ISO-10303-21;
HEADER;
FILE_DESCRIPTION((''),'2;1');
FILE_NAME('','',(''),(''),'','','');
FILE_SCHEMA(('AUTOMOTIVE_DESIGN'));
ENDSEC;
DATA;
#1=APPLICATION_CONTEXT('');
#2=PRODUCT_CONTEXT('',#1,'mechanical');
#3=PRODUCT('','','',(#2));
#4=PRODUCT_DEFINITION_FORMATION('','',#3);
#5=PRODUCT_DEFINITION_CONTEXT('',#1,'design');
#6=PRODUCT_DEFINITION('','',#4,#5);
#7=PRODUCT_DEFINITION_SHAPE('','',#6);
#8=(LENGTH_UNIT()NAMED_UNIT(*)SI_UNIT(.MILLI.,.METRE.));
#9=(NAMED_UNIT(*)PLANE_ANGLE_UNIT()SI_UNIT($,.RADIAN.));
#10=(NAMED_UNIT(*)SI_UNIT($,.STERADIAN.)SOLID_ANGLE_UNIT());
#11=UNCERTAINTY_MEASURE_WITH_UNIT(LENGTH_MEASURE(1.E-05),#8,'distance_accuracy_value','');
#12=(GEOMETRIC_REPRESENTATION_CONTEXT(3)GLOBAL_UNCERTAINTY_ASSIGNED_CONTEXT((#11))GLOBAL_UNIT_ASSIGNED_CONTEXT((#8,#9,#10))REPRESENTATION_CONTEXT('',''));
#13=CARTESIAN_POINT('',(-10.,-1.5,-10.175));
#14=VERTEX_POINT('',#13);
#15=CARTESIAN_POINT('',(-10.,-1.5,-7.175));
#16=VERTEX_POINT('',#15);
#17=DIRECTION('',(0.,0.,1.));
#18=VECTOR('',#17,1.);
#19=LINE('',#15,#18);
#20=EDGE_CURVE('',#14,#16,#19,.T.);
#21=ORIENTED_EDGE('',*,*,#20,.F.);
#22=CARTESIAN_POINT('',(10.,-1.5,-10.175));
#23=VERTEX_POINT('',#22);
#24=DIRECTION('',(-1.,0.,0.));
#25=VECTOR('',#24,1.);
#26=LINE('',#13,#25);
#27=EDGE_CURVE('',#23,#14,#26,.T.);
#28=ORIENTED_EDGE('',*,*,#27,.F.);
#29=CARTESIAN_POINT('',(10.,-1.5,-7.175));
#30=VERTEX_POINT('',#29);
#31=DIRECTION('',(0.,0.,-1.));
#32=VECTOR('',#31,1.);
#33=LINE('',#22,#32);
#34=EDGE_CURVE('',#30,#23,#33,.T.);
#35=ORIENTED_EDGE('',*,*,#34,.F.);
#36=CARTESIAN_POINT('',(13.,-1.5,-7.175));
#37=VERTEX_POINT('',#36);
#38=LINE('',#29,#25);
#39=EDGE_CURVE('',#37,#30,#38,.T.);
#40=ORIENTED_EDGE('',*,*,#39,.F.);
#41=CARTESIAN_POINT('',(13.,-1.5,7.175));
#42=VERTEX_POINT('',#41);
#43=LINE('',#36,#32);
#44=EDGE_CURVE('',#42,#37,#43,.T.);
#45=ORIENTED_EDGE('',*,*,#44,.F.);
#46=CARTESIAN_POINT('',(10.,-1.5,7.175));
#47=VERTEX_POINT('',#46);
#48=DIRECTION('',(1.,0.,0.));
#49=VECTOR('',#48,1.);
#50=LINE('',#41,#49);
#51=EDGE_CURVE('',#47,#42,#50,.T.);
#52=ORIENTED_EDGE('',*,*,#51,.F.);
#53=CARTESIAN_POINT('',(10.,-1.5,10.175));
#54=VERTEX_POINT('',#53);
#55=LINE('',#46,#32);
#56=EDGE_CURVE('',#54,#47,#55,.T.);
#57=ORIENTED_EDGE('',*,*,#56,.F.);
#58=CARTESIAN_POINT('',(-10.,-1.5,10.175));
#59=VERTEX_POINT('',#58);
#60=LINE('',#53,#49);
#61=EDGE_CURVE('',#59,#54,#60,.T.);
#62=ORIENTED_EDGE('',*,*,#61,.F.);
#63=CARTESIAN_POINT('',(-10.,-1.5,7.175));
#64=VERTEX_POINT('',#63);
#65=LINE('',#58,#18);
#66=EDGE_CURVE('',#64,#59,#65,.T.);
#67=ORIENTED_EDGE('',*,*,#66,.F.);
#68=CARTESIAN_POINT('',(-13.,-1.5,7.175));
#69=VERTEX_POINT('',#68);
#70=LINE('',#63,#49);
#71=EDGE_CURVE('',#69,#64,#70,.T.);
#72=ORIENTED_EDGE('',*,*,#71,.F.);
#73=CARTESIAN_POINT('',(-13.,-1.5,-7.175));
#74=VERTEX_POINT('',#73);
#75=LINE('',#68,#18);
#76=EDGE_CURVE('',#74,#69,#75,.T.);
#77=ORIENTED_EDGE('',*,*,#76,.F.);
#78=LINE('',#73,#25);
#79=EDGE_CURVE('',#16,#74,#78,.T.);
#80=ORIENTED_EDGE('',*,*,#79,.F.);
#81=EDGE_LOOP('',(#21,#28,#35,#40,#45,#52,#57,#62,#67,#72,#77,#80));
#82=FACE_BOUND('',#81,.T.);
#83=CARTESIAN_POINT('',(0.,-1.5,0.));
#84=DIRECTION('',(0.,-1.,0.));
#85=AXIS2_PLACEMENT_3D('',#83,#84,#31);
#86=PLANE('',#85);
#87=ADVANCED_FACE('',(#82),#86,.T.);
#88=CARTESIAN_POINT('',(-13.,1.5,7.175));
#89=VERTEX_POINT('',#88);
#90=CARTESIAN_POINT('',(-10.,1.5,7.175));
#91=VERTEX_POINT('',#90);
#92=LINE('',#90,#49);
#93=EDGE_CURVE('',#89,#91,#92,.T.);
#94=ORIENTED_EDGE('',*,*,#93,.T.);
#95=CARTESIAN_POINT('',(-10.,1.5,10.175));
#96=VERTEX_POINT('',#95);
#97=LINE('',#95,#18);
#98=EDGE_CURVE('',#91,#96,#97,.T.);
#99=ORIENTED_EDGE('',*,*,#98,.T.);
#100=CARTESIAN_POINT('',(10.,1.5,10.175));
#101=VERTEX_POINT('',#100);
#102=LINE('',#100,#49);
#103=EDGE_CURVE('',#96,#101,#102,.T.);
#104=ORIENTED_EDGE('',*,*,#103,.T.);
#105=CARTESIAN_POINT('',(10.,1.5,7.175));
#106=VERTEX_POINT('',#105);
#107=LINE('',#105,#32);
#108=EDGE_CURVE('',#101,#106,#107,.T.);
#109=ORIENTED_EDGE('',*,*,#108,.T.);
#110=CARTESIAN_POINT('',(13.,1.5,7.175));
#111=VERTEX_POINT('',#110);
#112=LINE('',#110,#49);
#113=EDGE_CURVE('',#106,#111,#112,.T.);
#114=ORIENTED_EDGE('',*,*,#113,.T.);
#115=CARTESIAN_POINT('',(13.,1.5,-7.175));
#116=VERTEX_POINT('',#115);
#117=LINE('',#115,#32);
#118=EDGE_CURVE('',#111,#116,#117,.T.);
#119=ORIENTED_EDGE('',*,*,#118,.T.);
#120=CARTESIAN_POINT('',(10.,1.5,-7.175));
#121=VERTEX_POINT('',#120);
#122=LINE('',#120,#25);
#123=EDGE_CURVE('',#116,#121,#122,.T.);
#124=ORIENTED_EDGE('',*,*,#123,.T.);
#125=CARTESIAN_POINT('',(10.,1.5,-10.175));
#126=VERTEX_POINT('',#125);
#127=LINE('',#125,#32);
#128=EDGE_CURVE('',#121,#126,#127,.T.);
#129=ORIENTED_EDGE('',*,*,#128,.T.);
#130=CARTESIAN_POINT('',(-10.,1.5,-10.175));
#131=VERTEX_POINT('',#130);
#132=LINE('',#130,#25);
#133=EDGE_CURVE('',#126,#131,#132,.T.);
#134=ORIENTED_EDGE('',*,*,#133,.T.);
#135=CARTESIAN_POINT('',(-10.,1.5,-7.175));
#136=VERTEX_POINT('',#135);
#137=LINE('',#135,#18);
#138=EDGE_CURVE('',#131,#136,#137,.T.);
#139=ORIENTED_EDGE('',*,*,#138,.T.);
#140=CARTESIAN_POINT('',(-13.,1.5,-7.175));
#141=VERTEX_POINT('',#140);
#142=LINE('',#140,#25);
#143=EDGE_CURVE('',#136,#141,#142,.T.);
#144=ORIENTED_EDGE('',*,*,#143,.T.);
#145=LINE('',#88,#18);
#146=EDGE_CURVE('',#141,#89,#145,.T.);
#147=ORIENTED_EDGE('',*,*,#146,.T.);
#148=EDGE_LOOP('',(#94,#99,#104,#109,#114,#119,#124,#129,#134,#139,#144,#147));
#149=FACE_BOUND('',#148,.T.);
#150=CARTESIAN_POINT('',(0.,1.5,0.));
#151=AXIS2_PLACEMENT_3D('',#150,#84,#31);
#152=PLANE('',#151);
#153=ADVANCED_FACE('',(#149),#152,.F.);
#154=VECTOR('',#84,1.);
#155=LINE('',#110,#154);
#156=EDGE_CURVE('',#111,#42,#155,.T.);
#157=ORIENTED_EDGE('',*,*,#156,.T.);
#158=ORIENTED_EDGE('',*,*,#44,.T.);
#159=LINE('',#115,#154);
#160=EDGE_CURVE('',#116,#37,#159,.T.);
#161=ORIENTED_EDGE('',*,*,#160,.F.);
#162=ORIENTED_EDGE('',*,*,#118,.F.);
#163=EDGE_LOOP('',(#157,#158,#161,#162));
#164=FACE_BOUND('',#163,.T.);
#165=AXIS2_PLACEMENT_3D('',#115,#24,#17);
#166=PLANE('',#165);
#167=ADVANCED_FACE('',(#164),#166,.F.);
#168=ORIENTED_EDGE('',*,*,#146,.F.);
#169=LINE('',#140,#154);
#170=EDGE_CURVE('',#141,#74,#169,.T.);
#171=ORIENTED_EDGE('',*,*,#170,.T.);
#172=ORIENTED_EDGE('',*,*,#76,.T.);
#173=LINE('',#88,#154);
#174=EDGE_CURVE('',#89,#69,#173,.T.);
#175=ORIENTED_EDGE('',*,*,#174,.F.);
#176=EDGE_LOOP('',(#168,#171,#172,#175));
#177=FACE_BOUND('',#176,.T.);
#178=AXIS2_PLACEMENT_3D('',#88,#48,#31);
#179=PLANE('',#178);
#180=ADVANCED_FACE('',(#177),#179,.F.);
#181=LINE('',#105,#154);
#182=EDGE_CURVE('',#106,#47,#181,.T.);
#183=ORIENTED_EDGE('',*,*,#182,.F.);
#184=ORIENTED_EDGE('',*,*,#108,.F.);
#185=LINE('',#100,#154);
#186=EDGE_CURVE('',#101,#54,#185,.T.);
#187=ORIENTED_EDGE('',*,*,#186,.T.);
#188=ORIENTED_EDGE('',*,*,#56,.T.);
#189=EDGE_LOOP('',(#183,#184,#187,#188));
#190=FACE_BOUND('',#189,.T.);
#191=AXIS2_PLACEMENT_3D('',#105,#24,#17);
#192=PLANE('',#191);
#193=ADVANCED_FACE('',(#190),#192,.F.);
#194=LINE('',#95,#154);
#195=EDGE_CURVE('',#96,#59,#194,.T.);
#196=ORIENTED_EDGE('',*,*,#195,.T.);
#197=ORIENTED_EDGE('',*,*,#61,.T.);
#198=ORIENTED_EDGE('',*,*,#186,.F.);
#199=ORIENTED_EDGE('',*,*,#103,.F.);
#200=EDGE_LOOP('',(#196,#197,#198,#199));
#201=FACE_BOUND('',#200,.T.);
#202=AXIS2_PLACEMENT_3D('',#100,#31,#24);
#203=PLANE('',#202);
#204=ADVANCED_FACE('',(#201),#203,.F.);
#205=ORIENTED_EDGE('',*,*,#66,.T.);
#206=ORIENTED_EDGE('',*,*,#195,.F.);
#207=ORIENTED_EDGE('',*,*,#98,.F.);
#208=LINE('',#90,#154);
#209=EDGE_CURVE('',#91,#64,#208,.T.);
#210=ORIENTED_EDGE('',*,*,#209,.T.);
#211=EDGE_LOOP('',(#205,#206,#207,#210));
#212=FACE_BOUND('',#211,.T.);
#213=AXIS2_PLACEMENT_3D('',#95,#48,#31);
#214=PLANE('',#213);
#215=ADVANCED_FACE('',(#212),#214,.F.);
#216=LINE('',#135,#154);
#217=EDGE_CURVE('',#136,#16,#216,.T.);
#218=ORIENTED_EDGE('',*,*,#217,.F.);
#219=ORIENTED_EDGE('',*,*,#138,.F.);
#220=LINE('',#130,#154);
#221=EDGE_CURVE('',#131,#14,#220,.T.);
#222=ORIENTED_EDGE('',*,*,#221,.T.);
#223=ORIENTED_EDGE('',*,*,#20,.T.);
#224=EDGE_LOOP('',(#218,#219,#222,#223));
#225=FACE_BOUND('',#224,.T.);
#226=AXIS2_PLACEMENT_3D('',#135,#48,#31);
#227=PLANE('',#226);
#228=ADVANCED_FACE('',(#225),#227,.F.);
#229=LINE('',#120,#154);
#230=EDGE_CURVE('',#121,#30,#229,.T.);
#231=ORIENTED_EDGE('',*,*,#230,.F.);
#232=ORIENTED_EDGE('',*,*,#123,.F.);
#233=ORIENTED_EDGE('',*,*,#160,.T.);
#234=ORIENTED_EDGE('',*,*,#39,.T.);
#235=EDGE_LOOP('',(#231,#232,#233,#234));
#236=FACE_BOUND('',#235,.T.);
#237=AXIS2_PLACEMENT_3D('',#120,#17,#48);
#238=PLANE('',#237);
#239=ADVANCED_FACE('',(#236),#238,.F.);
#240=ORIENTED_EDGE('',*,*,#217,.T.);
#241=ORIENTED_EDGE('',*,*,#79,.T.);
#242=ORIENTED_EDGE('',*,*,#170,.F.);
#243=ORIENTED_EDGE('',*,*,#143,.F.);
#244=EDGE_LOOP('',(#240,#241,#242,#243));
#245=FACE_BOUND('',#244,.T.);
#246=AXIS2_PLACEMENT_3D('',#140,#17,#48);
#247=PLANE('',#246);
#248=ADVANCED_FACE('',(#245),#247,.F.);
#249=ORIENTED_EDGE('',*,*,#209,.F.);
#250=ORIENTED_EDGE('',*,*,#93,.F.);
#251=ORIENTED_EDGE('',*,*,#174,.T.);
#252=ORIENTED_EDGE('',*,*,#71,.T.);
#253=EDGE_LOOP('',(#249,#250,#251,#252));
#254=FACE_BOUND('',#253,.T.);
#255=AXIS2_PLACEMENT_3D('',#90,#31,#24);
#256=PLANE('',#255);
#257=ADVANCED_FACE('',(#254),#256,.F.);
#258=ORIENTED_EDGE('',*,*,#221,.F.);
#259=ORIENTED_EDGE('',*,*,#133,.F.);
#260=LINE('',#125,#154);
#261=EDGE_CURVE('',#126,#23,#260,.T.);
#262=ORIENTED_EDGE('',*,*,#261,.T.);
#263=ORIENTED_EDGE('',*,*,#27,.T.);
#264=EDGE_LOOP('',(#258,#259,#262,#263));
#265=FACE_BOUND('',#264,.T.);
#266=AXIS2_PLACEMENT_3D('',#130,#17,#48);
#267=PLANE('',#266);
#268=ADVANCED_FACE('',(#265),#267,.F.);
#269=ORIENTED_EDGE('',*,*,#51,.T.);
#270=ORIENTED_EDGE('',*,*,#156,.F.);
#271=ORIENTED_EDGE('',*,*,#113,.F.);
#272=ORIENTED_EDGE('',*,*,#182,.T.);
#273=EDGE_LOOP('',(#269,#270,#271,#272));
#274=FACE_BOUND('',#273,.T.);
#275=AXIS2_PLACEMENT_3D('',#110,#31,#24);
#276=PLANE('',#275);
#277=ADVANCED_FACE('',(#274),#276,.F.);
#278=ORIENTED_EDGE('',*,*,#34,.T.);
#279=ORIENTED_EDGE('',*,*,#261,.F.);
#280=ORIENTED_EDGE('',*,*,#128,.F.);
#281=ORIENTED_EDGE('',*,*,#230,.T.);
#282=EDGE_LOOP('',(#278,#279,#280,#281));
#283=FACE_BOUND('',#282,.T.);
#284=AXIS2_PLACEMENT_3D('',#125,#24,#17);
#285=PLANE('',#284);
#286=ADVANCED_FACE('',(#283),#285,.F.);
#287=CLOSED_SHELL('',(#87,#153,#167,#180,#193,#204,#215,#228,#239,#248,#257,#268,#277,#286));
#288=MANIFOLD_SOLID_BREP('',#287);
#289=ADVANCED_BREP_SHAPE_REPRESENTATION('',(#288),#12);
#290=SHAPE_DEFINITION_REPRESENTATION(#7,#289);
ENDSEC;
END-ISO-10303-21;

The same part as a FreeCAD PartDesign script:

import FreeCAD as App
import Part
import Sketcher
from FreeCAD import Vector


def add_polygon(sketch, points):
    """Adds a closed chain of lines whose ends are joined by coincident constraints."""
    first, n = sketch.GeometryCount, len(points)
    for a, b in zip(points, points[1:] + points[:1]):
        sketch.addGeometry(Part.LineSegment(App.Vector(*a, 0), App.Vector(*b, 0)), False)
    for i in range(n):
        sketch.addConstraint(Sketcher.Constraint("Coincident", first + i, 2, first + (i + 1) % n, 1))

doc = App.newDocument("Part")
params = doc.addObject("Spreadsheet::Sheet", "Params")
for row, (alias, value) in enumerate([
    ("sketch1_width", "20 mm"),
    ("sketch1_width2", "3 mm"),
    ("sketch1_height", "14.35 mm"),
    ("pad1_length", "3 mm"),
], start=1):
    params.set(f"A{row}", alias)
    params.set(f"B{row}", "=" + value)
    params.setAlias(f"B{row}", alias)

body = doc.addObject("PartDesign::Body", "Body")

# Sketch on XZ plane
sketch1 = body.newObject("Sketcher::SketchObject", "Sketch")
sketch1.AttachmentSupport = (doc.getObject("XZ_Plane"), [""])
sketch1.MapMode = "FlatFace"
add_polygon(sketch1, [(10, -10.2), (-10, -10.2), (-10, -7.2), (-13, -7.2), (-13, 7.2), (-10, 7.2), (-10, 10.2), (10, 10.2), (10, 7.2), (13, 7.2), (13, -7.2), (10, -7.2)])  # lines 0-11
sketch1.addConstraint(Sketcher.Constraint("Horizontal", 0))
sketch1.addConstraint(Sketcher.Constraint("Vertical", 1))
sketch1.addConstraint(Sketcher.Constraint("Horizontal", 2))
sketch1.addConstraint(Sketcher.Constraint("Vertical", 3))
sketch1.addConstraint(Sketcher.Constraint("Horizontal", 4))
sketch1.addConstraint(Sketcher.Constraint("Vertical", 5))
sketch1.addConstraint(Sketcher.Constraint("Horizontal", 6))
sketch1.addConstraint(Sketcher.Constraint("Vertical", 7))
sketch1.addConstraint(Sketcher.Constraint("Horizontal", 8))
sketch1.addConstraint(Sketcher.Constraint("Vertical", 9))
sketch1.addConstraint(Sketcher.Constraint("Horizontal", 10))
sketch1.addConstraint(Sketcher.Constraint("Vertical", 11))
sketch1.addConstraint(Sketcher.Constraint("Symmetric", 0, 2, 6, 2, -1, 1))
sketch1.addConstraint(Sketcher.Constraint("Symmetric", 2, 2, 8, 2, -1, 1))
sketch1.addConstraint(Sketcher.Constraint("Symmetric", 4, 2, 10, 2, -1, 1))
sketch1.addConstraint(Sketcher.Constraint("Symmetric", 4, 2, 7, 2, -2))
sketch1.addConstraint(Sketcher.Constraint("Equal", 10, 1))
sketch1.addConstraint(Sketcher.Constraint("DistanceX", 0, 2, 0, 1, 20.0))
sketch1.addConstraint(Sketcher.Constraint("DistanceX", 2, 2, 2, 1, 3.0))
sketch1.addConstraint(Sketcher.Constraint("DistanceY", 3, 1, 3, 2, 14.35))
sketch1.setExpression("Constraints[29]", "Params.sketch1_width")
sketch1.setExpression("Constraints[30]", "Params.sketch1_width2")
sketch1.setExpression("Constraints[31]", "Params.sketch1_height")
pad1 = body.newObject("PartDesign::Pad", "Pad")
pad1.Profile = sketch1
pad1.setExpression("Length", "Params.pad1_length")
pad1.Midplane = True

doc.recompute()
